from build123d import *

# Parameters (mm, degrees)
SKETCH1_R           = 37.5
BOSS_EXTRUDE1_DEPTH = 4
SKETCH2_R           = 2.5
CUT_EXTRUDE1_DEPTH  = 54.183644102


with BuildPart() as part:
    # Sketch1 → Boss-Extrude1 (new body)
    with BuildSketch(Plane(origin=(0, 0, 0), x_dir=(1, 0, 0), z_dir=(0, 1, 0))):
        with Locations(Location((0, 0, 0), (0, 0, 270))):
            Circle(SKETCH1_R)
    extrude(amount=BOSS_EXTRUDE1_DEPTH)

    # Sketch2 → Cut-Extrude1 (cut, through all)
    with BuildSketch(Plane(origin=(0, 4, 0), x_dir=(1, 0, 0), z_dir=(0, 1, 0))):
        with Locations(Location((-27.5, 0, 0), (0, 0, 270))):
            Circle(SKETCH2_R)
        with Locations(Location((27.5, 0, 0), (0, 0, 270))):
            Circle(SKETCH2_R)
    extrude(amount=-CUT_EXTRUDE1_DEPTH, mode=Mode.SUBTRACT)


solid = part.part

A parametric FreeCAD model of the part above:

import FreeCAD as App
import Part
import Sketcher

V = App.Vector
Q = App.Units.Quantity

doc = App.newDocument("Part")
params = doc.addObject("Spreadsheet::Sheet", "Params")
for row, (alias, value) in enumerate([
    ("sketch1_diameter", "75 mm"),
    ("pad1_length", "4 mm"),
    ("sketch2_diameter", "5 mm"),
], start=1):
    params.set(f"A{row}", alias)
    params.set(f"B{row}", "=" + value)
    params.setAlias(f"B{row}", alias)

body = doc.addObject("PartDesign::Body", "Body")

sketch1 = body.newObject("Sketcher::SketchObject", "Sketch")
sketch1.AttachmentSupport = (doc.getObject("XZ_Plane"), [""])
sketch1.MapMode = "FlatFace"
sketch1.addGeometry(Part.Circle(V(0, 0, 0), V(0, 0, 1), 38), False)
sketch1.addConstraint(Sketcher.Constraint("Coincident", 0, 3, -1, 1))
sketch1.addConstraint(Sketcher.Constraint("Diameter", 0, Q("75 mm")))
sketch1.setExpression("Constraints[1]", "Params.sketch1_diameter")
pad1 = body.newObject("PartDesign::Pad", "Pad")
pad1.Profile = sketch1
pad1.setExpression("Length", "Params.pad1_length")
pad1.Reversed = True

sketch2 = body.newObject("Sketcher::SketchObject", "Sketch001")
sketch2.AttachmentSupport = (doc.getObject("XZ_Plane"), [""])
sketch2.MapMode = "FlatFace"
sketch2.AttachmentOffset = App.Placement(V(0, 0, -4), App.Rotation())
sketch2.addGeometry(Part.Circle(V(-27.5, 0, 0), V(0, 0, 1), 2.5), False)
sketch2.addGeometry(Part.Circle(V(27.5, 0, 0), V(0, 0, 1), 2.5), False)
sketch2.addConstraint(Sketcher.Constraint("Equal", 0, 1))
sketch2.addConstraint(Sketcher.Constraint("Symmetric", 0, 3, 1, 3, -1, 1))
sketch2.addConstraint(Sketcher.Constraint("PointOnObject", 0, 3, -1))
sketch2.addConstraint(Sketcher.Constraint("Diameter", 0, Q("5 mm")))
sketch2.addConstraint(Sketcher.Constraint("DistanceX", 0, 3, 1, 3, Q("55 mm")))
sketch2.setExpression("Constraints[3]", "Params.sketch2_diameter")
pocket1 = body.newObject("PartDesign::Pocket", "Pocket")
pocket1.Profile = sketch2
pocket1.Type = "ThroughAll"
pocket1.Reversed = True

doc.recompute()
